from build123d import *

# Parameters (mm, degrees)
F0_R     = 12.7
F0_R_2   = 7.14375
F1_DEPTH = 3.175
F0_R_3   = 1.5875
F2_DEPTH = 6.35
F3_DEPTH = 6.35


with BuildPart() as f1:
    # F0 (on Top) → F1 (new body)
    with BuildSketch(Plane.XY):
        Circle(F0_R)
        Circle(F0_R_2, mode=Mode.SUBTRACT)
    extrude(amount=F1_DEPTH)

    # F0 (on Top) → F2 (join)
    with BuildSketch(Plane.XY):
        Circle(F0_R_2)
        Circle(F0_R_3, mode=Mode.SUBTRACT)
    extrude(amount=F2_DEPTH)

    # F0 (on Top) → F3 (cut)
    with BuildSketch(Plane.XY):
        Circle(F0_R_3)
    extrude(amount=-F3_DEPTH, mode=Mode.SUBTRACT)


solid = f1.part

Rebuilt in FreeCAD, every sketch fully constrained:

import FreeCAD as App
import Part
import Sketcher

V = App.Vector
Q = App.Units.Quantity

doc = App.newDocument("Part")
body = doc.addObject("PartDesign::Body", "Body")

# Sketch on XY plane
sketch1 = body.newObject("Sketcher::SketchObject", "Sketch")
sketch1.AttachmentSupport = (doc.getObject("XY_Plane"), [""])
sketch1.MapMode = "FlatFace"
sketch1.addGeometry(Part.Circle(V(0, 0, 0), V(0, 0, 1), 13), False)
sketch1.addGeometry(Part.Circle(V(0, 0, 0), V(0, 0, 1), 7), False)
sketch1.addConstraint(Sketcher.Constraint("Coincident", 0, 3, -1, 1))
sketch1.addConstraint(Sketcher.Constraint("Coincident", 1, 3, -1, 1))
sketch1.addConstraint(Sketcher.Constraint("Diameter", 0, Q("1 in")))
sketch1.addConstraint(Sketcher.Constraint("Diameter", 1, Q("0.5625 in")))
pad1 = body.newObject("PartDesign::Pad", "Pad")
pad1.Profile = sketch1
pad1.Length = Q("0.125 in")

# Sketch on XY plane
sketch2 = body.newObject("Sketcher::SketchObject", "Sketch001")
sketch2.AttachmentSupport = (doc.getObject("XY_Plane"), [""])
sketch2.MapMode = "FlatFace"
sketch2.addGeometry(Part.Circle(V(0, 0, 0), V(0, 0, 1), 7.1), False)
sketch2.addGeometry(Part.Circle(V(0, 0, 0), V(0, 0, 1), 1.6), False)
sketch2.addConstraint(Sketcher.Constraint("Coincident", 0, 3, -1, 1))
sketch2.addConstraint(Sketcher.Constraint("Coincident", 1, 3, -1, 1))
sketch2.addConstraint(Sketcher.Constraint("Diameter", 0, Q("0.5625 in")))
sketch2.addConstraint(Sketcher.Constraint("Diameter", 1, Q("0.125 in")))
pad2 = body.newObject("PartDesign::Pad", "Pad001")
pad2.Profile = sketch2
pad2.Length = Q("0.25 in")

# Sketch on XY plane
sketch3 = body.newObject("Sketcher::SketchObject", "Sketch002")
sketch3.AttachmentSupport = (doc.getObject("XY_Plane"), [""])
sketch3.MapMode = "FlatFace"
sketch3.addGeometry(Part.Circle(V(0, 0, 0), V(0, 0, 1), 1.6), False)
sketch3.addConstraint(Sketcher.Constraint("Coincident", 0, 3, -1, 1))
sketch3.addConstraint(Sketcher.Constraint("Diameter", 0, Q("0.125 in")))
pocket1 = body.newObject("PartDesign::Pocket", "Pocket")
pocket1.Profile = sketch3
pocket1.Length = Q("0.25 in")

doc.recompute()
